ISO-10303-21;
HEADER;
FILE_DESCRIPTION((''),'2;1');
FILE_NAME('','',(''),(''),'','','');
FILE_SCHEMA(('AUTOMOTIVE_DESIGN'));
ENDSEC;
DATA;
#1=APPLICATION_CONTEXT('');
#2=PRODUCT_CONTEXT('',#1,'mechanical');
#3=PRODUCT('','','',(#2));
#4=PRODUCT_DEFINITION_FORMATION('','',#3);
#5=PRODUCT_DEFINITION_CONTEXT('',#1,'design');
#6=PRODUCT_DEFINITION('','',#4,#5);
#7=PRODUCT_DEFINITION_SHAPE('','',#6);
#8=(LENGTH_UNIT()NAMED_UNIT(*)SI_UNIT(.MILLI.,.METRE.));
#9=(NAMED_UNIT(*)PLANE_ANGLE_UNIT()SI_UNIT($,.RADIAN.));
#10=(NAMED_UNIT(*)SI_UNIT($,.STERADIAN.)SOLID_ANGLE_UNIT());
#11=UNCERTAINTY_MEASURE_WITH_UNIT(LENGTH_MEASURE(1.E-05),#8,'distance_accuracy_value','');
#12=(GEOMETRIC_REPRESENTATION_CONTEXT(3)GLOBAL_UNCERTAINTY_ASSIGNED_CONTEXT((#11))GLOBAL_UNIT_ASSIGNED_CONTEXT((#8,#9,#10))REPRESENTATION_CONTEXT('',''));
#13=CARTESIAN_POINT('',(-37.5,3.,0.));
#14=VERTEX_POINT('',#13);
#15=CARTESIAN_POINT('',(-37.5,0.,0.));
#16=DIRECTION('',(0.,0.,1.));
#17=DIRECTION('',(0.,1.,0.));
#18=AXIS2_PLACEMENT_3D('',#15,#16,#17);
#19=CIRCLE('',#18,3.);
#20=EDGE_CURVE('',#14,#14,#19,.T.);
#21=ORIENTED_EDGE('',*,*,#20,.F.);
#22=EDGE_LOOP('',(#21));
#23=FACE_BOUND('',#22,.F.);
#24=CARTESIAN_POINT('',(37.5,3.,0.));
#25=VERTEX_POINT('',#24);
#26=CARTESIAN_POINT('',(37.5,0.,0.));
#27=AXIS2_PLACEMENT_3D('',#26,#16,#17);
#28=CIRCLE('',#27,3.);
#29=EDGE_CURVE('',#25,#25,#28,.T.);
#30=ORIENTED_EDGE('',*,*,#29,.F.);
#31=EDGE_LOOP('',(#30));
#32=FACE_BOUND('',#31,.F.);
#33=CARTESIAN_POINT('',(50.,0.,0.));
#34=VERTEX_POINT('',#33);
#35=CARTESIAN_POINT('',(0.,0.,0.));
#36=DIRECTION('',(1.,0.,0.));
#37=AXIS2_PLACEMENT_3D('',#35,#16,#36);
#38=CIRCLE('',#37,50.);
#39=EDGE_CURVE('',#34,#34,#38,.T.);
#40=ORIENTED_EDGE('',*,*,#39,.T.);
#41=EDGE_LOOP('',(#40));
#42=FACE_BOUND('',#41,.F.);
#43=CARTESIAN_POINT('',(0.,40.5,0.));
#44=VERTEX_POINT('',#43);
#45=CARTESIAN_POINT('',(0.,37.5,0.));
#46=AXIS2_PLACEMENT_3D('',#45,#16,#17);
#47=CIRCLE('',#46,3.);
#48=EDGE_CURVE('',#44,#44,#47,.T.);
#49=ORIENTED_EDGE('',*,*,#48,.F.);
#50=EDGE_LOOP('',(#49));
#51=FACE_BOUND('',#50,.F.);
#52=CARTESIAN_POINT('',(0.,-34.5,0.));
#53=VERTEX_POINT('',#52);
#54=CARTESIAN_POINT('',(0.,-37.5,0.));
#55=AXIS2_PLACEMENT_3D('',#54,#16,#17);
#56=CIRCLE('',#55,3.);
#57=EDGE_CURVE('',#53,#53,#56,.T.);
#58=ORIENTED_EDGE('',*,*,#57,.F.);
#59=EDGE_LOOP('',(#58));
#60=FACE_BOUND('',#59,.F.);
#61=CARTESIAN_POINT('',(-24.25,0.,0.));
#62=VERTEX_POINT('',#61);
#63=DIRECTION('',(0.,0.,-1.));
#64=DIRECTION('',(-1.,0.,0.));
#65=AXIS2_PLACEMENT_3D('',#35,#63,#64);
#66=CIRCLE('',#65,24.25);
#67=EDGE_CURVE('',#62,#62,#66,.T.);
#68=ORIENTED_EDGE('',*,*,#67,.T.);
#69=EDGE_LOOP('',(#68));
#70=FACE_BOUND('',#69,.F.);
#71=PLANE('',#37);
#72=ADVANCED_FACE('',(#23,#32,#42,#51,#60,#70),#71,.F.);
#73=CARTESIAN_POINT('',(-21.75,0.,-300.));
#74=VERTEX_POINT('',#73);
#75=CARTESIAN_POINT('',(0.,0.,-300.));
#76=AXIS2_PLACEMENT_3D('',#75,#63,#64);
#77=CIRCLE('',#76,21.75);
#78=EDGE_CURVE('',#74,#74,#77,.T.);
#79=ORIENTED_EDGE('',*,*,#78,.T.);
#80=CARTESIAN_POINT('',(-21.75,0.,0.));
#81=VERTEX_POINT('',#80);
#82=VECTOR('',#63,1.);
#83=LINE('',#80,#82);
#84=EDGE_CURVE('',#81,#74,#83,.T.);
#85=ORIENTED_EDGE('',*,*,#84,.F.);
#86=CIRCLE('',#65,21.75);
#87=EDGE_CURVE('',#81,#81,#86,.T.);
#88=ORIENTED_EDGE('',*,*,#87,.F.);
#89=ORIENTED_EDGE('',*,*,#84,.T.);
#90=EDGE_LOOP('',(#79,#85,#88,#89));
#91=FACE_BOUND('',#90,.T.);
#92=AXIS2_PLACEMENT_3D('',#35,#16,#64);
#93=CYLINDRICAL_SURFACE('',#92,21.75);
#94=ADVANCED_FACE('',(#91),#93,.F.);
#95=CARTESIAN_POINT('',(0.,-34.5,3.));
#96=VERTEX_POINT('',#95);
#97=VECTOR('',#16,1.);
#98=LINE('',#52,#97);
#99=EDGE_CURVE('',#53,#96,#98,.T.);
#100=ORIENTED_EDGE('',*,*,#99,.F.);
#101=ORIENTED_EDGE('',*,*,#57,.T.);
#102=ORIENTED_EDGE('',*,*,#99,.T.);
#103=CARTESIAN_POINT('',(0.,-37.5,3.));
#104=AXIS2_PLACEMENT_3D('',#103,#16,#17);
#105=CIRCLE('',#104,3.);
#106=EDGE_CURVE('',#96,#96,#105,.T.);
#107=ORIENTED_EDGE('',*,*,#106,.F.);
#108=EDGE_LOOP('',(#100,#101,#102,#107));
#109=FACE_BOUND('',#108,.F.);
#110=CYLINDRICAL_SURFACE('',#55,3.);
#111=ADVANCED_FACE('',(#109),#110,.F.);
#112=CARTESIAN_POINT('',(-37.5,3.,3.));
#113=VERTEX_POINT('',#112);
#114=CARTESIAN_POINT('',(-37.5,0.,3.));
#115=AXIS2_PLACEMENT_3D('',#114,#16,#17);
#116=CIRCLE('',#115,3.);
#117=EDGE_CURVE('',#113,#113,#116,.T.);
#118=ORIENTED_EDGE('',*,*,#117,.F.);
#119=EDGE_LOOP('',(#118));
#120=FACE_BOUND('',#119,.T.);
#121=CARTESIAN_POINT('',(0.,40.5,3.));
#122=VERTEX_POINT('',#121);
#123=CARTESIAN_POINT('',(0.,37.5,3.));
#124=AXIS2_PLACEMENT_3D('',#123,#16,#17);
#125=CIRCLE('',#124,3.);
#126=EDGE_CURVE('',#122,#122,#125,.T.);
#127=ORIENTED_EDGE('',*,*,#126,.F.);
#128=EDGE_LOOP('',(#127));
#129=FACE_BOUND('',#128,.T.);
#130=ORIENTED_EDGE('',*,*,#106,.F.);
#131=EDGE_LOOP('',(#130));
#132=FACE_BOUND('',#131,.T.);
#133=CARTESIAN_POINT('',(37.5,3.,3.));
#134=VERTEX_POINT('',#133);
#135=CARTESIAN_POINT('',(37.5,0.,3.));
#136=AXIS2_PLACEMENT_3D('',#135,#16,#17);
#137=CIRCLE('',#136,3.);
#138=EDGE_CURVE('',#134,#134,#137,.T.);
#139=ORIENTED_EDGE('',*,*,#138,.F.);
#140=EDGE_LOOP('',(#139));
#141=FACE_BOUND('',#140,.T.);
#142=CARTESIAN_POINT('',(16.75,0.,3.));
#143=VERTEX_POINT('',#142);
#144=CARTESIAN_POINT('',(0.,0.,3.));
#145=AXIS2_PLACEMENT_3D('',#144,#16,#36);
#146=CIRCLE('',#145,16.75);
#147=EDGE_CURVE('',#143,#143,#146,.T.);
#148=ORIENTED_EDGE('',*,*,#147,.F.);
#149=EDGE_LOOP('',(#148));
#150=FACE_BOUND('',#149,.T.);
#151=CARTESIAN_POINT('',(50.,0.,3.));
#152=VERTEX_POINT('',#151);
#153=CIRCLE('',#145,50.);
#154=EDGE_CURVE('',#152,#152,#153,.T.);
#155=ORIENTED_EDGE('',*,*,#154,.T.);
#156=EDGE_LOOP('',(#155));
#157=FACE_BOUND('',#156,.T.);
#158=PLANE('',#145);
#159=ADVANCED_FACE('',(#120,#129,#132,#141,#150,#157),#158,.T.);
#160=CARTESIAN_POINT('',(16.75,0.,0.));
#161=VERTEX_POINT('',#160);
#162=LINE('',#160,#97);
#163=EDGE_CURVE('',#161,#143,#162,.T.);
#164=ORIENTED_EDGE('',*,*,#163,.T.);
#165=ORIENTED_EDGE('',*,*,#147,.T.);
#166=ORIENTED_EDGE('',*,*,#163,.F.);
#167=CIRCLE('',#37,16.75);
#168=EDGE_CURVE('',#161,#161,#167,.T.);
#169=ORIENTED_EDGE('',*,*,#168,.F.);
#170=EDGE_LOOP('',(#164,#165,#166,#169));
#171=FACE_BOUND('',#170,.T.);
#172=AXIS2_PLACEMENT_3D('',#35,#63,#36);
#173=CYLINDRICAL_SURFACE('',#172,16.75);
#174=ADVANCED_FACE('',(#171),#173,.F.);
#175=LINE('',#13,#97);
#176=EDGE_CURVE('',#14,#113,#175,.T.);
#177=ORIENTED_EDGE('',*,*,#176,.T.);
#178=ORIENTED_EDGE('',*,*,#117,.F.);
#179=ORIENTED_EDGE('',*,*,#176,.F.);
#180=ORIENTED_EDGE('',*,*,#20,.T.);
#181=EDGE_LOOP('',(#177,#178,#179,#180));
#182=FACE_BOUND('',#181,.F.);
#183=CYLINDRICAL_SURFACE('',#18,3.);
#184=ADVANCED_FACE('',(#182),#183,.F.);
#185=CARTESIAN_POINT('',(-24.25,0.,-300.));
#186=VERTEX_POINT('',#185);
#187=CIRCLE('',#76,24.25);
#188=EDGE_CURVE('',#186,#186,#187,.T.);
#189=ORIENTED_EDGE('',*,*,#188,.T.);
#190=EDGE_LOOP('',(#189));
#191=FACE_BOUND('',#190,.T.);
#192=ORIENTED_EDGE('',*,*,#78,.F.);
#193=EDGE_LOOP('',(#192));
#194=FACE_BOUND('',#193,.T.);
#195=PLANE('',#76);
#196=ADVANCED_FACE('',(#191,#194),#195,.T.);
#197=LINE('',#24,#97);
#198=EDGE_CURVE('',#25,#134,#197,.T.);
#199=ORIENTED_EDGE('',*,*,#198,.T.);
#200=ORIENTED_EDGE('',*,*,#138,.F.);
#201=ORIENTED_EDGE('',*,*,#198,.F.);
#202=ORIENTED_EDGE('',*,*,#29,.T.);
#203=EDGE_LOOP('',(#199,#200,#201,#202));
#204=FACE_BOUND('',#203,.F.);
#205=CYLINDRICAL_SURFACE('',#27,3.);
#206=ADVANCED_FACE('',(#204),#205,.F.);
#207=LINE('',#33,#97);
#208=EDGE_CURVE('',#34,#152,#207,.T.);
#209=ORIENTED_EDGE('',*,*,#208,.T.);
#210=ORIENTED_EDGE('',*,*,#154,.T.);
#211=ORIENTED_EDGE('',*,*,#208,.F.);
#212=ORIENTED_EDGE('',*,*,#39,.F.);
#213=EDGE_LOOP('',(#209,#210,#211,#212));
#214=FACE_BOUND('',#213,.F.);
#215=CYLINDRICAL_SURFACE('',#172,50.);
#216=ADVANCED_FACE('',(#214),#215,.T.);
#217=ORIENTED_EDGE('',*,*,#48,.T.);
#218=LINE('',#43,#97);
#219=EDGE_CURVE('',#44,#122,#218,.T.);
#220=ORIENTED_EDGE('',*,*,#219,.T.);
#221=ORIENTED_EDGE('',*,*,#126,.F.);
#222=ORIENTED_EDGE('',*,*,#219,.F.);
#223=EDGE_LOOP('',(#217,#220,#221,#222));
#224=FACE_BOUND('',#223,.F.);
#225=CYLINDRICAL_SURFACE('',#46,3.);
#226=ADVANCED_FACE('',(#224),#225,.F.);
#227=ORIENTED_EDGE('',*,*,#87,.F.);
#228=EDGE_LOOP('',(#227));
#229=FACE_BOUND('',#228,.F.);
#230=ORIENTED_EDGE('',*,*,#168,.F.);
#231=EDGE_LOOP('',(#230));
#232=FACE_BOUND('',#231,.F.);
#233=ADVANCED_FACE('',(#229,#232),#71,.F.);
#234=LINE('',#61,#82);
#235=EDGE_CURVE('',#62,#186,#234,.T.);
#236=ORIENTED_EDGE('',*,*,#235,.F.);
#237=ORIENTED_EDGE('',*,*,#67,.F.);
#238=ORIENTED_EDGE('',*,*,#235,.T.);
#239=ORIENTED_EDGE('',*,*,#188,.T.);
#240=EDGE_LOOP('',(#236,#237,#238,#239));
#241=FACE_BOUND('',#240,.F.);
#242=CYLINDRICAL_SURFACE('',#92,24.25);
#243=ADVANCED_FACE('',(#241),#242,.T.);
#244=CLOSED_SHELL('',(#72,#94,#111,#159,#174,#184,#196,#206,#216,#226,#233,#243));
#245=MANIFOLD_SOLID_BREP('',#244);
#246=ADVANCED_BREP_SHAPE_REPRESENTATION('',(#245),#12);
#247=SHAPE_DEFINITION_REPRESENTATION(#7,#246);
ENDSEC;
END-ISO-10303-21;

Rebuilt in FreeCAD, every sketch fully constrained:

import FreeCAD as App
import Part
import Sketcher

doc = App.newDocument("Part")
body = doc.addObject("PartDesign::Body", "Body")

# Sketch on XY plane
sketch1 = body.newObject("Sketcher::SketchObject", "Sketch")
sketch1.AttachmentSupport = (doc.getObject("XY_Plane"), [""])
sketch1.MapMode = "FlatFace"
sketch1.addGeometry(Part.Circle(App.Vector(0, 0, 0), App.Vector(0, 0, 1), 50), False)
sketch1.addGeometry(Part.Circle(App.Vector(0, 0, 0), App.Vector(0, 0, 1), 17), False)
sketch1.addConstraint(Sketcher.Constraint("Coincident", 0, 3, -1, 1))
sketch1.addConstraint(Sketcher.Constraint("Coincident", 1, 3, -1, 1))
sketch1.addConstraint(Sketcher.Constraint("Diameter", 0, 100.0))
sketch1.addConstraint(Sketcher.Constraint("Diameter", 1, 33.5))
pad1 = body.newObject("PartDesign::Pad", "Pad")
pad1.Profile = sketch1
pad1.Length = 3

# Sketch on XY plane
sketch2 = body.newObject("Sketcher::SketchObject", "Sketch001")
sketch2.AttachmentSupport = (doc.getObject("XY_Plane"), [""])
sketch2.MapMode = "FlatFace"
sketch2.addGeometry(Part.Circle(App.Vector(0, 0, 0), App.Vector(0, 0, 1), 24), False)
sketch2.addGeometry(Part.Circle(App.Vector(0, 0, 0), App.Vector(0, 0, 1), 22), False)
sketch2.addConstraint(Sketcher.Constraint("Coincident", 0, 3, -1, 1))
sketch2.addConstraint(Sketcher.Constraint("Coincident", 1, 3, -1, 1))
sketch2.addConstraint(Sketcher.Constraint("Diameter", 0, 48.5))
sketch2.addConstraint(Sketcher.Constraint("Diameter", 1, 43.5))
pad2 = body.newObject("PartDesign::Pad", "Pad001")
pad2.Profile = sketch2
pad2.Length = 300
pad2.Reversed = True

# Sketch on XY plane
sketch3 = body.newObject("Sketcher::SketchObject", "Sketch002")
sketch3.AttachmentSupport = (doc.getObject("XY_Plane"), [""])
sketch3.MapMode = "FlatFace"
sketch3.addGeometry(Part.Circle(App.Vector(-37.5, 0, 0), App.Vector(0, 0, 1), 3), False)
sketch3.addGeometry(Part.Circle(App.Vector(0, -37.5, 0), App.Vector(0, 0, 1), 3), False)
sketch3.addGeometry(Part.Circle(App.Vector(37.5, 0, 0), App.Vector(0, 0, 1), 3), False)
sketch3.addGeometry(Part.Circle(App.Vector(0, 37.5, 0), App.Vector(0, 0, 1), 3), False)
sketch3.addConstraint(Sketcher.Constraint("Equal", 0, 1))
sketch3.addConstraint(Sketcher.Constraint("Equal", 1, 2))
sketch3.addConstraint(Sketcher.Constraint("Equal", 2, 3))
sketch3.addConstraint(Sketcher.Constraint("Symmetric", 0, 3, 2, 3, -1, 1))
sketch3.addConstraint(Sketcher.Constraint("Symmetric", 1, 3, 3, 3, -1, 1))
sketch3.addConstraint(Sketcher.Constraint("PointOnObject", 0, 3, -1))
sketch3.addConstraint(Sketcher.Constraint("PointOnObject", 1, 3, -2))
sketch3.addConstraint(Sketcher.Constraint("Diameter", 0, 6.0))
sketch3.addConstraint(Sketcher.Constraint("DistanceX", 0, 3, 2, 3, 75.0))
sketch3.addConstraint(Sketcher.Constraint("DistanceY", 1, 3, 3, 3, 75.0))
doc.recompute()
hole = body.newObject("PartDesign::Hole", "Hole")
hole.Profile = sketch3
hole.ThreadType = "None"
hole.Diameter = 6
hole.DepthType = "ThroughAll"
hole.Reversed = True

doc.recompute()
